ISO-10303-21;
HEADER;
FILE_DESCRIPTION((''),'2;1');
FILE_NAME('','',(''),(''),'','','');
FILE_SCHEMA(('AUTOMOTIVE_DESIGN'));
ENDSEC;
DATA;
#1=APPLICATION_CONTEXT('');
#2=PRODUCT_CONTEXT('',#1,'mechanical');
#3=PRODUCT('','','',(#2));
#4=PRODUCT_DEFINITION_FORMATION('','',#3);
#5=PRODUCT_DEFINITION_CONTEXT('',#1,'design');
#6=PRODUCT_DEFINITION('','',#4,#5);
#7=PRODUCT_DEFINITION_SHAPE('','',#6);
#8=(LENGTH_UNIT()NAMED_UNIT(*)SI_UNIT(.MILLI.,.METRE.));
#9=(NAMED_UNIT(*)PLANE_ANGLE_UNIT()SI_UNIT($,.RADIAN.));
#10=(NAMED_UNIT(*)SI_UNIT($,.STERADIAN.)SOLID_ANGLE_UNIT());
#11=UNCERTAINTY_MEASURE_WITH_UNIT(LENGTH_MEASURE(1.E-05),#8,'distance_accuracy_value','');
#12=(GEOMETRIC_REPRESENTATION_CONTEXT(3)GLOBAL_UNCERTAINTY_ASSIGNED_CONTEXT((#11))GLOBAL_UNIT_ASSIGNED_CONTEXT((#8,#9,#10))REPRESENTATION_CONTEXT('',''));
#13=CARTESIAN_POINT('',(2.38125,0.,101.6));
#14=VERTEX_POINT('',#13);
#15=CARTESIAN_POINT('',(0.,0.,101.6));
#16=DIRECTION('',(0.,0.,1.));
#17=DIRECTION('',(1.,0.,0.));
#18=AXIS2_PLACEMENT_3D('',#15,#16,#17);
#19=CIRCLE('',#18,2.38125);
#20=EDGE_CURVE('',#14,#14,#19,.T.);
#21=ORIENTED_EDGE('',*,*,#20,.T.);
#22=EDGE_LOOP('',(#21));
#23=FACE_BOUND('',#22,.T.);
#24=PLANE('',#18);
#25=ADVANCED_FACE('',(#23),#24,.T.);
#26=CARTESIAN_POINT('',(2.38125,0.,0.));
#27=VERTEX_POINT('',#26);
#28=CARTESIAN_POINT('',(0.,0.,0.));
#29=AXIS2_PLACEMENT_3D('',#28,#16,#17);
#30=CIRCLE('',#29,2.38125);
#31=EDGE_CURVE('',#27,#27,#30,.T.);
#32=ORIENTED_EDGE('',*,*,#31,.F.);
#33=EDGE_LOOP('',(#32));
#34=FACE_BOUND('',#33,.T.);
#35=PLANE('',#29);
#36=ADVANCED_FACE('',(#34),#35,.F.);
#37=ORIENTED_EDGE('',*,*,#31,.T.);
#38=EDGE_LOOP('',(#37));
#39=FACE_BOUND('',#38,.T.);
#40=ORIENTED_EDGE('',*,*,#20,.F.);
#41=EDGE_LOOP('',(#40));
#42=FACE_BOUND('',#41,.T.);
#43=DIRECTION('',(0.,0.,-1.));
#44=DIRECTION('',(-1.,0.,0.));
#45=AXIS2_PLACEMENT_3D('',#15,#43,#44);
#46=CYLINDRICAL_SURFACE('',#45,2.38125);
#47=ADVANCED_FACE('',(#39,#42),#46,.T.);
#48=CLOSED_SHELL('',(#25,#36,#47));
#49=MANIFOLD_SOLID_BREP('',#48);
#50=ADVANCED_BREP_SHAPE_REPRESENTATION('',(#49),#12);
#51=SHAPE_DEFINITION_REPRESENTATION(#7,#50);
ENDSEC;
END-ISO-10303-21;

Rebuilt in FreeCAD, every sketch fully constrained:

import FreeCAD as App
import Part
import Sketcher
Q = App.Units.Quantity

doc = App.newDocument("Part")
body = doc.addObject("PartDesign::Body", "Body")

# Sketch on XY plane
sketch1 = body.newObject("Sketcher::SketchObject", "Sketch")
sketch1.AttachmentSupport = (doc.getObject("XY_Plane"), [""])
sketch1.MapMode = "FlatFace"
sketch1.addGeometry(Part.Circle(App.Vector(0, 0, 0), App.Vector(0, 0, 1), 2.4), False)
sketch1.addConstraint(Sketcher.Constraint("Coincident", 0, 3, -1, 1))
sketch1.addConstraint(Sketcher.Constraint("Diameter", 0, Q("0.1875 in")))
pad1 = body.newObject("PartDesign::Pad", "Pad")
pad1.Profile = sketch1
pad1.Length = Q("4 in")

doc.recompute()
